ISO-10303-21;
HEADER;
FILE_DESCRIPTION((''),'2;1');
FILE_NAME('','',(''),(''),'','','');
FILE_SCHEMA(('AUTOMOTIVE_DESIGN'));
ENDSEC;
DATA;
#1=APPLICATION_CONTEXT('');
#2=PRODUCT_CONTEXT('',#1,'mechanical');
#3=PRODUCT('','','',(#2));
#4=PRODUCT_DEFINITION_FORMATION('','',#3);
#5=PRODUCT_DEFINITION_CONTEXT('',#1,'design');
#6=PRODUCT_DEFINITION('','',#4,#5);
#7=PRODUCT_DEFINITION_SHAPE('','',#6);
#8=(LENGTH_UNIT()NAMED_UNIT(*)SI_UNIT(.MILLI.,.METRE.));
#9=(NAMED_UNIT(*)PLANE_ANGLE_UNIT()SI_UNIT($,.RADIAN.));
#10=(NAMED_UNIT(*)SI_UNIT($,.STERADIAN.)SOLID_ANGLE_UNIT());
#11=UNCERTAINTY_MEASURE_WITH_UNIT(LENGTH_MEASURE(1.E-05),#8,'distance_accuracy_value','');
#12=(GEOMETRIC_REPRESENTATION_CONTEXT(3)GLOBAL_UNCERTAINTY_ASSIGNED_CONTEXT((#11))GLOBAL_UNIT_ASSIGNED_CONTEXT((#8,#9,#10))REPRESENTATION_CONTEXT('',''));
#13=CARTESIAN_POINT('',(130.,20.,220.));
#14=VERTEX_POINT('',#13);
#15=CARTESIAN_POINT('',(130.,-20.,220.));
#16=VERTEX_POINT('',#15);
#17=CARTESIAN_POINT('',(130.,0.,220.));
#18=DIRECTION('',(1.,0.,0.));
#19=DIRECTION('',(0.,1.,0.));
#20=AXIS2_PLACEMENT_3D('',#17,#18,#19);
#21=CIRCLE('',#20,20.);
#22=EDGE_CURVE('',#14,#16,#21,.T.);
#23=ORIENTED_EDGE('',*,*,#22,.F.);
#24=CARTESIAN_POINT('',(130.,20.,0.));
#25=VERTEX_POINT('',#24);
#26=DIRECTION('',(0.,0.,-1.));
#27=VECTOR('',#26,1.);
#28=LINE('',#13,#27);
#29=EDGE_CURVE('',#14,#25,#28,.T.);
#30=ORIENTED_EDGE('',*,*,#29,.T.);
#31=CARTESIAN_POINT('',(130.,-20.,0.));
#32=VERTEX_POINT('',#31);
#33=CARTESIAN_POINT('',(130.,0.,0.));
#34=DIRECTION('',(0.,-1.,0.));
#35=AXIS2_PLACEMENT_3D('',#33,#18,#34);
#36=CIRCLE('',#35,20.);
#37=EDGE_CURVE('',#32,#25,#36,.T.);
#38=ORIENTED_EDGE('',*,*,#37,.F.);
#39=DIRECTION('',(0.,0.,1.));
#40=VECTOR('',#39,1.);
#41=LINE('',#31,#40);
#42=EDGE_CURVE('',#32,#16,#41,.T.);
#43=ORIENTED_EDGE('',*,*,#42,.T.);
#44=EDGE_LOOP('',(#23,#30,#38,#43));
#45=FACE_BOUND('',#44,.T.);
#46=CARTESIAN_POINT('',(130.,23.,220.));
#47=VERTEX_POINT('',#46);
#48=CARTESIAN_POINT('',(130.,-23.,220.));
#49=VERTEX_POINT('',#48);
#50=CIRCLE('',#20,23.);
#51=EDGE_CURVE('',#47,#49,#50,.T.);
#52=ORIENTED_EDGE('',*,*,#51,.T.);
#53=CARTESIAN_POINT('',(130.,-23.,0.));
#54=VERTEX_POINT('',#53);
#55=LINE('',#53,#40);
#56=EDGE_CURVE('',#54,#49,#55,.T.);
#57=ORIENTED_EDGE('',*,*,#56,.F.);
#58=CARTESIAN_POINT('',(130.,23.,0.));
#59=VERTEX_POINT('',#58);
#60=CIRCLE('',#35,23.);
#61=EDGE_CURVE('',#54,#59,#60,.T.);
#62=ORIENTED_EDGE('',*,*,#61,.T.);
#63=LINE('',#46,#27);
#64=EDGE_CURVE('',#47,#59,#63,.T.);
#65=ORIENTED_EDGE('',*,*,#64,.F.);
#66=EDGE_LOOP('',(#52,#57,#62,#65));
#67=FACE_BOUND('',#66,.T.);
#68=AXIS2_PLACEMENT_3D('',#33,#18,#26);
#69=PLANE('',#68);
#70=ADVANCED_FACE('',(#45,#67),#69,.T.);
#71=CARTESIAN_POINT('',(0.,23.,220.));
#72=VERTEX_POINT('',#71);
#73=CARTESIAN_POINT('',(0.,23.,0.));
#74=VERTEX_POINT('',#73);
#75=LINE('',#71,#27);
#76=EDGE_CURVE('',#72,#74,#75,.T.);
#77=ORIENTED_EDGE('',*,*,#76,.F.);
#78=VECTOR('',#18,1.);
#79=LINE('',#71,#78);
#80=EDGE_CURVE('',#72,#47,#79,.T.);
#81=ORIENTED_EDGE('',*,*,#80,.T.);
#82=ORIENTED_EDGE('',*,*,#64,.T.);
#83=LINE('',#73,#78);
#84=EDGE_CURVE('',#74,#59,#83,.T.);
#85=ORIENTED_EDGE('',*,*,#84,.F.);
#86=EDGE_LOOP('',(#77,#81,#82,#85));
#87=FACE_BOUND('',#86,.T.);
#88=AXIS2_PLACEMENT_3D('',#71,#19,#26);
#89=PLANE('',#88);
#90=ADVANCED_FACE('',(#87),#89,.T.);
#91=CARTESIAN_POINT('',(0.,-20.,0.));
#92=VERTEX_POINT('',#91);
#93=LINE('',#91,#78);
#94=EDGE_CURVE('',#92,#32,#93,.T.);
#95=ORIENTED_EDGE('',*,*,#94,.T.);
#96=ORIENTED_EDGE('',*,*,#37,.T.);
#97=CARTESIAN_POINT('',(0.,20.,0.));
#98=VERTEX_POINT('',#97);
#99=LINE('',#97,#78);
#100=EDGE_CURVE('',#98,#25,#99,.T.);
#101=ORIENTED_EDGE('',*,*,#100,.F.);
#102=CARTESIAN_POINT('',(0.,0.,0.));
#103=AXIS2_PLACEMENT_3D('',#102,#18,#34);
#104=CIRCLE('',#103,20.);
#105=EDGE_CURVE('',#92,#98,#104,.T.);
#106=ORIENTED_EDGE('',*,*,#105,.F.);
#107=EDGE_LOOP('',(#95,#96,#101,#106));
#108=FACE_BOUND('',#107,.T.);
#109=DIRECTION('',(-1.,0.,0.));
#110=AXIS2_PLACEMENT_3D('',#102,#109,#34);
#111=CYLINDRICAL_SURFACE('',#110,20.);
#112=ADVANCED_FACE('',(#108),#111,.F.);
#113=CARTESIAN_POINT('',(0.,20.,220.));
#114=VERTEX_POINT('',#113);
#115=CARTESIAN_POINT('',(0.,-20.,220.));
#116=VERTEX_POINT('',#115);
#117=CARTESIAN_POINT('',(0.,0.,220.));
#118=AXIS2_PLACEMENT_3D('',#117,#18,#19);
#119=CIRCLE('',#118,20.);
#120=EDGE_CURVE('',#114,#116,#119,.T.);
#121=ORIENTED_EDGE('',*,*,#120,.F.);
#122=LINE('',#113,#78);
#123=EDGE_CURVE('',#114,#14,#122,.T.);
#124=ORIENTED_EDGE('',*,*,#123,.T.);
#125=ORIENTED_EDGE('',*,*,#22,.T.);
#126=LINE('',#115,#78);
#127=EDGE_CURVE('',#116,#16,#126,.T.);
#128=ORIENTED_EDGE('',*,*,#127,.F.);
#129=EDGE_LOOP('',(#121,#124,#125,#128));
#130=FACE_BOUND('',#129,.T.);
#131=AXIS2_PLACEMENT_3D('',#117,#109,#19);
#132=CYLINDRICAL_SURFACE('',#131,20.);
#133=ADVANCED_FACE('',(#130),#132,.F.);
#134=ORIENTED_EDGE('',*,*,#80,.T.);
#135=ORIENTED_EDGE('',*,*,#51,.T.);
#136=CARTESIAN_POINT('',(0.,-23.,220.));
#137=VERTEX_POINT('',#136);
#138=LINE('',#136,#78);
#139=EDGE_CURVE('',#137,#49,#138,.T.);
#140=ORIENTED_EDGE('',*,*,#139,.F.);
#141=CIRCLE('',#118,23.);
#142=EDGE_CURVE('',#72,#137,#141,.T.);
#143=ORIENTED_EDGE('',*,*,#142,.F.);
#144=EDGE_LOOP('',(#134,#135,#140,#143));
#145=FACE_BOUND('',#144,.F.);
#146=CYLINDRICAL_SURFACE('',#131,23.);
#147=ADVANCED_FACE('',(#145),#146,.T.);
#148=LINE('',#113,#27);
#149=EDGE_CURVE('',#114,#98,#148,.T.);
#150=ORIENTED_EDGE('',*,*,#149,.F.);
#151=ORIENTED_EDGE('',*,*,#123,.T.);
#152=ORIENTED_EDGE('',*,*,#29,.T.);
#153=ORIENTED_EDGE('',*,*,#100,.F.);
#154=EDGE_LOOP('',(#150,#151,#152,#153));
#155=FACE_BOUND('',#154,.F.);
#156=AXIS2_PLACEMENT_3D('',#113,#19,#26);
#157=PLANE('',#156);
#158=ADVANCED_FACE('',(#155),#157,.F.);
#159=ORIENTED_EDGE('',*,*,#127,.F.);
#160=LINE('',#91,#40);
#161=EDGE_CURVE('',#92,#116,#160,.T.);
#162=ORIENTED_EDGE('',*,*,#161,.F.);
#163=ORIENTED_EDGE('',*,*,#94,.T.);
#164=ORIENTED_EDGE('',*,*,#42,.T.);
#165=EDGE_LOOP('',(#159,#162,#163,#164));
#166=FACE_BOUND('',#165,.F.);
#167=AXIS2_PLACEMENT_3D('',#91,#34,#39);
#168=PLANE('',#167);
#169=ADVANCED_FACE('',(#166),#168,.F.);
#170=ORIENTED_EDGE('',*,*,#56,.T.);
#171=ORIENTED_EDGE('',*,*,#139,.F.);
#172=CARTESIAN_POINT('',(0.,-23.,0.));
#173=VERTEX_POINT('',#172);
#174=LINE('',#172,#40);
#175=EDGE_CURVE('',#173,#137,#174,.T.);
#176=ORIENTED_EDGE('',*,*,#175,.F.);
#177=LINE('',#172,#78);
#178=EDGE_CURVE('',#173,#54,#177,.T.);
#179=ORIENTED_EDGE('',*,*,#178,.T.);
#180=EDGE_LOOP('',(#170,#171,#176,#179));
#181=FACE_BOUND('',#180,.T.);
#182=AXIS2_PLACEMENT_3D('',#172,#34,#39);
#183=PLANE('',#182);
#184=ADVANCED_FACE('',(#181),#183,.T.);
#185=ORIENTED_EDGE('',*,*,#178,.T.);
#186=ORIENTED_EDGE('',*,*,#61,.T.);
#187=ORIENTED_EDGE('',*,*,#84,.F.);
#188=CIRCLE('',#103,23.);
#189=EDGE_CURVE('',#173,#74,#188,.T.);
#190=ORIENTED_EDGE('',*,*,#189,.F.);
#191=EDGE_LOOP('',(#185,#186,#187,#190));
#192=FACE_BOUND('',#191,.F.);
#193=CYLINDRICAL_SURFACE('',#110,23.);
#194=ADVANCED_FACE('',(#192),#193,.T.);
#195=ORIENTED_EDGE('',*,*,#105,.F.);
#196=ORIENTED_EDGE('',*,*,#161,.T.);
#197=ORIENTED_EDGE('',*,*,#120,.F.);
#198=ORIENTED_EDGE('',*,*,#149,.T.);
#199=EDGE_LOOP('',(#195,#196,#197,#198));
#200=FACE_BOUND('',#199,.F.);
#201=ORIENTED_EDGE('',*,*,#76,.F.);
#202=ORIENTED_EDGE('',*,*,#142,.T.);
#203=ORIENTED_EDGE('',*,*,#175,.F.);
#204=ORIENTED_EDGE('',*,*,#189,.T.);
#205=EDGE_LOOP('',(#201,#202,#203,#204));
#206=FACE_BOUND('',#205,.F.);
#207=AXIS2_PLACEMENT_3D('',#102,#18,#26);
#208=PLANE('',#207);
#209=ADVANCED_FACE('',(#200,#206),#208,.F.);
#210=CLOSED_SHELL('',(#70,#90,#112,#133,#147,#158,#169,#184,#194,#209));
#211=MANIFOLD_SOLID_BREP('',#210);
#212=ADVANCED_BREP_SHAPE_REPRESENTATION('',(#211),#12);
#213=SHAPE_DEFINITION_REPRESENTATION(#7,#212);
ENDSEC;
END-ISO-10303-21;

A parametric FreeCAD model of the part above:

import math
import FreeCAD as App
import Part
import Sketcher
from FreeCAD import Vector
Q = App.Units.Quantity

doc = App.newDocument("Part")
body = doc.addObject("PartDesign::Body", "Body")

# Sketch on YZ plane
sketch1 = body.newObject("Sketcher::SketchObject", "Sketch")
sketch1.AttachmentSupport = (doc.getObject("YZ_Plane"), [""])
sketch1.MapMode = "FlatFace"
sketch1.addGeometry([
    Part.LineSegment(Vector(-23, 220, 0), Vector(-23, 0, 0)),  # 0
    Part.ArcOfCircle(Part.Circle(Vector(0, 0, 0), Vector(0, 0, 1), 23), math.radians(180), math.radians(360)),  # 1
    Part.LineSegment(Vector(23, 0, 0), Vector(23, 220, 0)),  # 2
    Part.ArcOfCircle(Part.Circle(Vector(0, 220, 0), Vector(0, 0, 1), 23), math.radians(0), math.radians(180)),  # 3
    Part.ArcOfCircle(Part.Circle(Vector(0, 220, 0), Vector(0, 0, 1), 20), math.radians(0), math.radians(180)),  # 4
    Part.LineSegment(Vector(20, 220, 0), Vector(20, 0, 0)),  # 5
    Part.ArcOfCircle(Part.Circle(Vector(0, 0, 0), Vector(0, 0, 1), 20), math.radians(180), math.radians(360)),  # 6
    Part.LineSegment(Vector(-20, 0, 0), Vector(-20, 220, 0)),  # 7
], False)
sketch1.addConstraint([
    Sketcher.Constraint("Tangent", 0, 2, 1, 1),
    Sketcher.Constraint("Tangent", 1, 2, 2, 1),
    Sketcher.Constraint("Tangent", 2, 2, 3, 1),
    Sketcher.Constraint("Tangent", 3, 2, 0, 1),
    Sketcher.Constraint("Tangent", 4, 1, 5, 1),
    Sketcher.Constraint("Tangent", 5, 2, 6, 2),
    Sketcher.Constraint("Tangent", 6, 1, 7, 1),
    Sketcher.Constraint("Tangent", 7, 2, 4, 2),
    Sketcher.Constraint("Vertical", 0),
    Sketcher.Constraint("Vertical", 2),
    Sketcher.Constraint("Vertical", 5),
    Sketcher.Constraint("Vertical", 7),
    Sketcher.Constraint("Coincident", 1, 3, -1, 1),
    Sketcher.Constraint("Coincident", 6, 3, -1, 1),
    Sketcher.Constraint("Horizontal", 4, 3, 2, 2),
    Sketcher.Constraint("Radius", 4, Q("20 mm")),
    Sketcher.Constraint("DistanceY", 0, 2, 0, 1, Q("220 mm")),
    Sketcher.Constraint("Radius", 1, Q("23 mm")),
])
pad1 = body.newObject("PartDesign::Pad", "Pad")
pad1.Profile = sketch1
pad1.Length = 130

doc.recompute()
